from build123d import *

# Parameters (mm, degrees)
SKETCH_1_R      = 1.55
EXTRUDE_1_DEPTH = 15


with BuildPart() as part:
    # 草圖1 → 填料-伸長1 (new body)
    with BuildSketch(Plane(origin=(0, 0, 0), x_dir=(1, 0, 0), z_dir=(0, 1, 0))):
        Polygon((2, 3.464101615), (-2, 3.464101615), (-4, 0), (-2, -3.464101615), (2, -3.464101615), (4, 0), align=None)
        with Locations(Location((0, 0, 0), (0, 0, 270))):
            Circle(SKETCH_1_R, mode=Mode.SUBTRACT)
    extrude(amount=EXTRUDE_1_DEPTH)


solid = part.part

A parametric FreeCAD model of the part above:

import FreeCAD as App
import Part
import Sketcher

V = App.Vector
Q = App.Units.Quantity


def add_polygon(sketch, points):
    """Adds a closed chain of lines whose ends are joined by coincident constraints."""
    first, n = sketch.GeometryCount, len(points)
    for a, b in zip(points, points[1:] + points[:1]):
        sketch.addGeometry(Part.LineSegment(App.Vector(*a, 0), App.Vector(*b, 0)), False)
    for i in range(n):
        sketch.addConstraint(Sketcher.Constraint("Coincident", first + i, 2, first + (i + 1) % n, 1))

doc = App.newDocument("Part")
body = doc.addObject("PartDesign::Body", "Body")

# Sketch on XZ plane
sketch1 = body.newObject("Sketcher::SketchObject", "Sketch")
sketch1.AttachmentSupport = (doc.getObject("XZ_Plane"), [""])
sketch1.MapMode = "FlatFace"
add_polygon(sketch1, [(2, -3.464102), (-2, -3.464102), (-4, 0), (-2, 3.464102), (2, 3.464102), (4, 0)])  # lines 0-5
sketch1.addGeometry(Part.Circle(V(0, 0, 0), V(0, 0, 1), 1.55), False)  # 6
sketch1.addConstraint([
    Sketcher.Constraint("Horizontal", 0),
    Sketcher.Constraint("Horizontal", 3),
    Sketcher.Constraint("Coincident", 6, 3, -1, 1),
    Sketcher.Constraint("Symmetric", 0, 2, 3, 2, -1, 1),
    Sketcher.Constraint("Symmetric", 1, 2, 4, 2, -1, 1),
    Sketcher.Constraint("PointOnObject", 1, 2, -1),
    Sketcher.Constraint("Parallel", 2, 5),
    Sketcher.Constraint("Vertical", 0, 2, 2, 2),
    Sketcher.Constraint("Diameter", 6, Q("3.1 mm")),
    Sketcher.Constraint("DistanceX", 0, 2, 0, 1, Q("4 mm")),
    Sketcher.Constraint("Angle", 1, Q("120 deg")),
    Sketcher.Constraint("Distance", 1, Q("4 mm")),
])
pad1 = body.newObject("PartDesign::Pad", "Pad")
pad1.Profile = sketch1
pad1.Length = 15
pad1.Reversed = True

doc.recompute()
